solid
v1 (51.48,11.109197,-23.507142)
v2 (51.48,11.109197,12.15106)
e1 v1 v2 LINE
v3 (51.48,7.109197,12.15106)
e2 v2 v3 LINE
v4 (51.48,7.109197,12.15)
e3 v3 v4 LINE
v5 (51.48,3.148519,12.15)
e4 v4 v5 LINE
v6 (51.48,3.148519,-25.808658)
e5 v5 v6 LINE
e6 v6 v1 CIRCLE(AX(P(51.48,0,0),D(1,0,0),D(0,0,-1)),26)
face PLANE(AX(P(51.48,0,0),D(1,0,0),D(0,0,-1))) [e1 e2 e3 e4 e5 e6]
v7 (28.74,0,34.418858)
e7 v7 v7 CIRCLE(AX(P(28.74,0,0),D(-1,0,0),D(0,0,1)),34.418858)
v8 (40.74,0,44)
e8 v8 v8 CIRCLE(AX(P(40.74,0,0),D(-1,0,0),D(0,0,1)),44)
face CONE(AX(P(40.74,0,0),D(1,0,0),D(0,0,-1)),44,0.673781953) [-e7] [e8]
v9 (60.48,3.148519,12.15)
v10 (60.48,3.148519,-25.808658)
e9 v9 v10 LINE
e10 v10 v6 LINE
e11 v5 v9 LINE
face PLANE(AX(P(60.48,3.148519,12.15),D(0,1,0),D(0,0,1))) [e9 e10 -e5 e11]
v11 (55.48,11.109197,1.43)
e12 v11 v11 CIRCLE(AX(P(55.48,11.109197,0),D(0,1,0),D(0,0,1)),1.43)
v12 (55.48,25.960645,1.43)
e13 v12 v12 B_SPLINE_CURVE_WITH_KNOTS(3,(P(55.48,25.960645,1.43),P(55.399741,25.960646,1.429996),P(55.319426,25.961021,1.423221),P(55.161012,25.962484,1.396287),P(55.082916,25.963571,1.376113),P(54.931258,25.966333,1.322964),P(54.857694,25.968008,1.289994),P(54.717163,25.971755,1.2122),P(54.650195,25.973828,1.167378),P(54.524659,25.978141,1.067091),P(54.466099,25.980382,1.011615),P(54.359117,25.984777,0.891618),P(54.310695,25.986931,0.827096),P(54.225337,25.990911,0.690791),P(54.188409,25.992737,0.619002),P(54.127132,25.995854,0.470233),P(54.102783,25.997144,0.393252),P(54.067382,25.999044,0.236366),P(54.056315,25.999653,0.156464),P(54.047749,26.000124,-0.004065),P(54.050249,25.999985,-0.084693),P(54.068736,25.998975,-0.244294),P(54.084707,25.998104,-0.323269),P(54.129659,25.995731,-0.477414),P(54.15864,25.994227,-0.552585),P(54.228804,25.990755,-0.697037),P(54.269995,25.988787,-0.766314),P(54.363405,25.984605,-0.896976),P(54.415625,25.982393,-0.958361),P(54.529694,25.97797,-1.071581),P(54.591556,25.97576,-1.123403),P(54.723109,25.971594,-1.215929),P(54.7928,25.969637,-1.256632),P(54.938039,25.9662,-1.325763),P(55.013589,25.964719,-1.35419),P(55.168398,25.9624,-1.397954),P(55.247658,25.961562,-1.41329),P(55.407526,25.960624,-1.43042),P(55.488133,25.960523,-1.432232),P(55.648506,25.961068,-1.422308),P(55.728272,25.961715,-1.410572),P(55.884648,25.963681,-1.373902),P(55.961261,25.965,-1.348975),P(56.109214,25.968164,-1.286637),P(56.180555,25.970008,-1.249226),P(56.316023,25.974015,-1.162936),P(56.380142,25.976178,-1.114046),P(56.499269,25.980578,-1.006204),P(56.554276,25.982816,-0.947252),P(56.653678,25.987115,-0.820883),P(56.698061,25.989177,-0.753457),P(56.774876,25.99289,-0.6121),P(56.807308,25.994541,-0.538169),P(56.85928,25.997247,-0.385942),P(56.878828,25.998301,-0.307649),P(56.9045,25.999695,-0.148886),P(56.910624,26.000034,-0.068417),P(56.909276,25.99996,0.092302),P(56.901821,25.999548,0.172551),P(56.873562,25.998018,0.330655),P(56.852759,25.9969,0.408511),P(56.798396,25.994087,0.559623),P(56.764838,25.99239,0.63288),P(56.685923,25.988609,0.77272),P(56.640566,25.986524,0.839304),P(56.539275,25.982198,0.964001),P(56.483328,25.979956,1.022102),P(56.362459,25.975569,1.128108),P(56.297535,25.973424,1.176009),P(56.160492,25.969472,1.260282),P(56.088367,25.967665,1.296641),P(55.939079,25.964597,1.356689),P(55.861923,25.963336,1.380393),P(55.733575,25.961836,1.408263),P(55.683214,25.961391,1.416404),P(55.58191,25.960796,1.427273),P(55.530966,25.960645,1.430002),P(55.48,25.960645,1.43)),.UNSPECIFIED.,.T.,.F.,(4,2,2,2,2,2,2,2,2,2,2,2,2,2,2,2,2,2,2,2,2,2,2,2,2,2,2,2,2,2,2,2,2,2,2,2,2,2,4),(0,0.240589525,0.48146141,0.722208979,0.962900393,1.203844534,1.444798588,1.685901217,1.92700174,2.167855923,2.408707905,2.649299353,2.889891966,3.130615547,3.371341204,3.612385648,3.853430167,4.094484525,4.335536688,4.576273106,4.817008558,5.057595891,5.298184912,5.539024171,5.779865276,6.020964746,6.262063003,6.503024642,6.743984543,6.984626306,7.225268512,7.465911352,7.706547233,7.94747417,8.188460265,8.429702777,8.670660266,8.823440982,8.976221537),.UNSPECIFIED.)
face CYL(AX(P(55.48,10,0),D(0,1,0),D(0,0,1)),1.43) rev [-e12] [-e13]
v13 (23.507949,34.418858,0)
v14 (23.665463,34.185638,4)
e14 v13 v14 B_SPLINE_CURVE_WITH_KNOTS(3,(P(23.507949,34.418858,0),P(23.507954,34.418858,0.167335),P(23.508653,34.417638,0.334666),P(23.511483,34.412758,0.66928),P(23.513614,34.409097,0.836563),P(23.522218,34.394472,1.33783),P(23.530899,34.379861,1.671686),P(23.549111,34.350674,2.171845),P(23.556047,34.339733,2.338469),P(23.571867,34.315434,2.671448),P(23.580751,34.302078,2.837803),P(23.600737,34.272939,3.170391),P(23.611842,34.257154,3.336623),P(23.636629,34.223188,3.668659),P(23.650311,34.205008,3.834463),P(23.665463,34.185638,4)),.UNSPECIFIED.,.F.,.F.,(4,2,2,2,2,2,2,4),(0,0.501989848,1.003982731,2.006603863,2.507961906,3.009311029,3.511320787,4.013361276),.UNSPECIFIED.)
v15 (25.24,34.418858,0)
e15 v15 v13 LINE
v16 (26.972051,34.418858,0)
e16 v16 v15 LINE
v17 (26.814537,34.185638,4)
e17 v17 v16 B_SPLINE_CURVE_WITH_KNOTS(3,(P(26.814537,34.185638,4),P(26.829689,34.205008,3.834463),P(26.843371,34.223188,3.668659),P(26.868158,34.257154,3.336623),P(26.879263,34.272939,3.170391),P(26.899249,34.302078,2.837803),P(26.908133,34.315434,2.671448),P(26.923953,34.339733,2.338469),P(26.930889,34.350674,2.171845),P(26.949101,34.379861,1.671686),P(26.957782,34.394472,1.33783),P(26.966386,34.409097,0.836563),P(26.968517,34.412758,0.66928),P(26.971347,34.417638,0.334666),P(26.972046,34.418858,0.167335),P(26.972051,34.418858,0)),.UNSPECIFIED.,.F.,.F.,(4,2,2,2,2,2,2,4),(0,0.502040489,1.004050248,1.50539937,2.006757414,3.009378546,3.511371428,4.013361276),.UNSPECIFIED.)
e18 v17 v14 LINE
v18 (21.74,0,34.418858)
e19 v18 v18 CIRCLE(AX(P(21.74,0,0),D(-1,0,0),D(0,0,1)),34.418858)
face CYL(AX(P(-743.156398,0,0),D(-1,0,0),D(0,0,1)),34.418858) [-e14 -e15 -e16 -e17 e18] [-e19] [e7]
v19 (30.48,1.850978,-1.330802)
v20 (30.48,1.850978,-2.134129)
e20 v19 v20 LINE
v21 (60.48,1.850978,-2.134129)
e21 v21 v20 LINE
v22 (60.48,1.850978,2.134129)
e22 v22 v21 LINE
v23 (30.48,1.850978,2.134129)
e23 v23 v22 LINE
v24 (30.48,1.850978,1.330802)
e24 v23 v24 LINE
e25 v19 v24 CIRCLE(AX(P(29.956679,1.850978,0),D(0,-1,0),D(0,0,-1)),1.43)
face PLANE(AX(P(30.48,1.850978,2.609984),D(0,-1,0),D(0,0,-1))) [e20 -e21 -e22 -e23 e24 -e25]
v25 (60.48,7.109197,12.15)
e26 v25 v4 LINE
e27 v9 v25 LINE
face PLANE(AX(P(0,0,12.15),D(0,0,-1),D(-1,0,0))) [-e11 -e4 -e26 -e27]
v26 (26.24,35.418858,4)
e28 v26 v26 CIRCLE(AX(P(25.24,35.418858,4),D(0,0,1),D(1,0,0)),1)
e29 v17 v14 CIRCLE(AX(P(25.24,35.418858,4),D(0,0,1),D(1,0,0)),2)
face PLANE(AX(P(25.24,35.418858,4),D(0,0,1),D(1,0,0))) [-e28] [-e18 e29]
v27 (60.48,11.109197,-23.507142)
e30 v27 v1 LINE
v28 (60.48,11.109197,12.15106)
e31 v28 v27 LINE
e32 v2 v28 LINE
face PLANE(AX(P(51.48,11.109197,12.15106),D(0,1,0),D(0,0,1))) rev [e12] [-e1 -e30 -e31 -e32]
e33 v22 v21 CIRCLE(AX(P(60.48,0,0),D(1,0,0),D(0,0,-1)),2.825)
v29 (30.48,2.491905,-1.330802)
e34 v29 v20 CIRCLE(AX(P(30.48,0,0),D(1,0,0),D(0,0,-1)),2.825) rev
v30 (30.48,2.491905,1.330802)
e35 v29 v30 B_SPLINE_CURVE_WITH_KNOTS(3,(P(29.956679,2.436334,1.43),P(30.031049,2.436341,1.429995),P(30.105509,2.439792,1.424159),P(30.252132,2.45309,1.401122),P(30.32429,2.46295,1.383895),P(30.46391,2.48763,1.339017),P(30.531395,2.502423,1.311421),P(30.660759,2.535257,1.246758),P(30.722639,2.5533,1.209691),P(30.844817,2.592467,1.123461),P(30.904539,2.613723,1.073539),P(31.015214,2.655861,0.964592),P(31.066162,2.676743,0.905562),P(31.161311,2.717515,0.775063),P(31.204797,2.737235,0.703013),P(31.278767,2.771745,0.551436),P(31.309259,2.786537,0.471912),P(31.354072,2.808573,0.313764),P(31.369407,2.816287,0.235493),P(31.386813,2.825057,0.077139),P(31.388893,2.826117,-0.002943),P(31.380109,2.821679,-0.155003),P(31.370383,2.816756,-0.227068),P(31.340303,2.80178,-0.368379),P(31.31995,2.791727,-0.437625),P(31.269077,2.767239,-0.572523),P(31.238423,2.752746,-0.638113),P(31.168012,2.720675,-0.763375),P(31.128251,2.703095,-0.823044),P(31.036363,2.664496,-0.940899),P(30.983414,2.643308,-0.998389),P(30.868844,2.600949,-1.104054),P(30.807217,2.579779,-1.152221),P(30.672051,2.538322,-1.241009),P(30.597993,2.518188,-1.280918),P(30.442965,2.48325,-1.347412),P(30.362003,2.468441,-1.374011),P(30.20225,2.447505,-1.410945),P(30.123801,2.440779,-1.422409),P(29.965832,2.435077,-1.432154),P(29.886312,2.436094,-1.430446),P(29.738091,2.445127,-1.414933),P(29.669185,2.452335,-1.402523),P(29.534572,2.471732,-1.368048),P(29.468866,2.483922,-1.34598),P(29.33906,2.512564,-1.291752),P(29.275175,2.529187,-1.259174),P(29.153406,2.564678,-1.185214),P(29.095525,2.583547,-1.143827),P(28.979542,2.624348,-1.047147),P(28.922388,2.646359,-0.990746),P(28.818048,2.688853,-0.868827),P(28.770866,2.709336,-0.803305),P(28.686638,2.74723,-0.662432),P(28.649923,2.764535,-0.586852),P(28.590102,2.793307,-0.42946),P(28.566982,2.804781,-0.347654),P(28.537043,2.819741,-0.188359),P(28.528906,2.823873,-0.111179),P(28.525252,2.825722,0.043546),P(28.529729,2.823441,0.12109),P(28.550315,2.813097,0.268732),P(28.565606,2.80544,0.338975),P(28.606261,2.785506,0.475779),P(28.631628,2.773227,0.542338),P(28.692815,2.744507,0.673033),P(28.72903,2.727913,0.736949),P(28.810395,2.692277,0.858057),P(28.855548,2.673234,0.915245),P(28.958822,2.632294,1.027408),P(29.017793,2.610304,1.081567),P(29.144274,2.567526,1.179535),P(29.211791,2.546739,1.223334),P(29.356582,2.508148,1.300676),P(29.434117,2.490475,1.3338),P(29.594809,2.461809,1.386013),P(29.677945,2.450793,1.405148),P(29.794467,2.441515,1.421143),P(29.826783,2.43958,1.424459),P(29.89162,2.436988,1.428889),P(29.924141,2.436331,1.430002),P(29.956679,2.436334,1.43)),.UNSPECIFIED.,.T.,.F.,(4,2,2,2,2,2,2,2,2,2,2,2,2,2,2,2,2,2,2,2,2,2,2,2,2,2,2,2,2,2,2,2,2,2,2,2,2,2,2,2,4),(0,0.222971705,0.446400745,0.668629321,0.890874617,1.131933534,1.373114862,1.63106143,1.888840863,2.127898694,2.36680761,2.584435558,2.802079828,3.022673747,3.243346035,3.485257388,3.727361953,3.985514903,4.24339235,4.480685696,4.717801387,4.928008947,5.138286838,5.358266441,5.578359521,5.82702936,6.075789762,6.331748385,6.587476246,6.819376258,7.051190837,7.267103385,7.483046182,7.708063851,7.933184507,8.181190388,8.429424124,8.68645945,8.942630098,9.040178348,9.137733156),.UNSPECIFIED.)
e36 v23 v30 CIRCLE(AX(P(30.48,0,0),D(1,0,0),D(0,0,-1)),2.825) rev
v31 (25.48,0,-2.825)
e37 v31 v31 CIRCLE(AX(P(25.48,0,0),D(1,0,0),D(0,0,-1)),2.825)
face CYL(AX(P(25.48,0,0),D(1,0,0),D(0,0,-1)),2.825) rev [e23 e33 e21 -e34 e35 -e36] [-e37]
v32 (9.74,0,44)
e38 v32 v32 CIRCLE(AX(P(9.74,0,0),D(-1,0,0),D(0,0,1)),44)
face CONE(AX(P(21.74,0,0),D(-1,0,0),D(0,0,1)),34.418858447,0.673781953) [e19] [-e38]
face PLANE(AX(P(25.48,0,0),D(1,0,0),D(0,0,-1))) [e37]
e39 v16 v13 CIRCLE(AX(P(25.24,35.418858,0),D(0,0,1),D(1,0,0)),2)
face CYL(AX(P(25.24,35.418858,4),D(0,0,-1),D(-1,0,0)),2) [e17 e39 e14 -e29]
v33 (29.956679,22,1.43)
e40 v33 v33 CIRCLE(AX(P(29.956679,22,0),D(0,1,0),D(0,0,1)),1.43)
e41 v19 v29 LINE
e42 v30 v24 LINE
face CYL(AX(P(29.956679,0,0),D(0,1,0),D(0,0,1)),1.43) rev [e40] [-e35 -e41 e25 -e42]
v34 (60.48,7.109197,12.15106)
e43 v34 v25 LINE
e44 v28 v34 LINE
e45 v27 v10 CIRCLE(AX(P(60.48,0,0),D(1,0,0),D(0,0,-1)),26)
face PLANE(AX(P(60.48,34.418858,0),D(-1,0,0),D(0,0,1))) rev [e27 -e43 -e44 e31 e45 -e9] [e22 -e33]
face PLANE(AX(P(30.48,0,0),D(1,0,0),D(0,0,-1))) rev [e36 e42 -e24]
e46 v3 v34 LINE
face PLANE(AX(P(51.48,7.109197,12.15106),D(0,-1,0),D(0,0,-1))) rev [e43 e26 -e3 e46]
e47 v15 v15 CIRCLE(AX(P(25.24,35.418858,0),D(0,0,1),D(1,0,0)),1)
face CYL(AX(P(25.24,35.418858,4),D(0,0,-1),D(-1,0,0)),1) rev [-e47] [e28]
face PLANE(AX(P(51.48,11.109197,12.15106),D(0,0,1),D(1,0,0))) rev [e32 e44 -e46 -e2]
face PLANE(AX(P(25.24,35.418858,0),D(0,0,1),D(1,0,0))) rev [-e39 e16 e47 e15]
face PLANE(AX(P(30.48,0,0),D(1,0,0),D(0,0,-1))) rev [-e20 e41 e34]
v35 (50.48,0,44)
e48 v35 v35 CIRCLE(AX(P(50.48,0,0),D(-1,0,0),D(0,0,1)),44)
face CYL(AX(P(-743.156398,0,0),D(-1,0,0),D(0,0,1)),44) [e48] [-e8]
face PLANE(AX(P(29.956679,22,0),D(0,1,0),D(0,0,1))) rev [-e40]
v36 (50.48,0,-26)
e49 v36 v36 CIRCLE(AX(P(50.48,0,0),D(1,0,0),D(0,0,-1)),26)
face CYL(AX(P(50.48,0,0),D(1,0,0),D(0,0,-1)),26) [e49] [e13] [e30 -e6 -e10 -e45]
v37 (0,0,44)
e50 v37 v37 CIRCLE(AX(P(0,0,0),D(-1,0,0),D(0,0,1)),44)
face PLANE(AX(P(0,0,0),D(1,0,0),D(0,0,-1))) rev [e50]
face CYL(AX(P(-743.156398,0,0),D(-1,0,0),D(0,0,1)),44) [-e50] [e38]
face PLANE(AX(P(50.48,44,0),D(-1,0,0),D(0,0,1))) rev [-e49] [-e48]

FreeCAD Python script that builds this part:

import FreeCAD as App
import Part
import Sketcher

doc = App.newDocument("Part")
body = doc.addObject("PartDesign::Body", "Body")

# Sketch on XY plane
sketch1 = body.newObject("Sketcher::SketchObject", "Sketch")
sketch1.AttachmentSupport = (doc.getObject("XY_Plane"), [""])
sketch1.MapMode = "FlatFace"
sketch1.addGeometry([
    Part.LineSegment(App.Vector(0, 44, 0), App.Vector(0, 0, 0)),  # 0
    Part.LineSegment(App.Vector(0, 0, 0), App.Vector(60, 0, 0)),  # 1
    Part.LineSegment(App.Vector(60, 0, 0), App.Vector(60, 34, 0)),  # 2
    Part.LineSegment(App.Vector(60, 34, 0), App.Vector(50, 34, 0)),  # 3
    Part.LineSegment(App.Vector(50, 34, 0), App.Vector(50, 44, 0)),  # 4
    Part.LineSegment(App.Vector(50, 44, 0), App.Vector(41, 44, 0)),  # 5
    Part.LineSegment(App.Vector(41, 44, 0), App.Vector(29, 34, 0)),  # 6
    Part.LineSegment(App.Vector(29, 34, 0), App.Vector(22, 34, 0)),  # 7
    Part.LineSegment(App.Vector(22, 34, 0), App.Vector(10, 44, 0)),  # 8
    Part.LineSegment(App.Vector(10, 44, 0), App.Vector(0, 44, 0)),  # 9
], False)
sketch1.addConstraint([
    Sketcher.Constraint("Coincident", 0, 2, 1, 1),
    Sketcher.Constraint("Coincident", 1, 2, 2, 1),
    Sketcher.Constraint("Coincident", 2, 2, 3, 1),
    Sketcher.Constraint("Coincident", 3, 2, 4, 1),
    Sketcher.Constraint("Coincident", 4, 2, 5, 1),
    Sketcher.Constraint("Coincident", 5, 2, 6, 1),
    Sketcher.Constraint("Coincident", 6, 2, 7, 1),
    Sketcher.Constraint("Coincident", 7, 2, 8, 1),
    Sketcher.Constraint("Coincident", 8, 2, 9, 1),
    Sketcher.Constraint("Coincident", 9, 2, 0, 1),
    Sketcher.Constraint("Vertical", 0),
    Sketcher.Constraint("Horizontal", 1),
    Sketcher.Constraint("Vertical", 2),
    Sketcher.Constraint("Horizontal", 3),
    Sketcher.Constraint("Vertical", 4),
    Sketcher.Constraint("Horizontal", 5),
    Sketcher.Constraint("Horizontal", 7),
    Sketcher.Constraint("Horizontal", 9),
    Sketcher.Constraint("Coincident", 0, 2, -1, 1),
    Sketcher.Constraint("Horizontal", 3, 2, 6, 2),
    Sketcher.Constraint("Horizontal", 5, 2, 8, 2),
    Sketcher.Constraint("Equal", 5, 9),
    Sketcher.Constraint("Equal", 6, 8),
    Sketcher.Constraint("DistanceX", 3, 2, 3, 1, 10.0),
    Sketcher.Constraint("DistanceX", 7, 2, 7, 1, 7.0),
    Sketcher.Constraint("DistanceY", 0, 2, 0, 1, 44.0),
    Sketcher.Constraint("DistanceX", 6, 2, 5, 2, 12.0),
    Sketcher.Constraint("DistanceX", 1, 1, 1, 2, 60.48),
    Sketcher.Constraint("DistanceY", 2, 1, 2, 2, 34.418858),
])
revolution = body.newObject("PartDesign::Revolution", "Revolution")
revolution.Profile = sketch1
revolution.ReferenceAxis = (sketch1, ["H_Axis"])
revolution.Angle = 360

# Sketch on YZ plane
sketch2 = body.newObject("Sketcher::SketchObject", "Sketch001")
sketch2.AttachmentSupport = (doc.getObject("YZ_Plane"), [""])
sketch2.MapMode = "FlatFace"
sketch2.AttachmentOffset = App.Placement(App.Vector(0, 0, 60.48), App.Rotation())
sketch2.addGeometry(Part.Circle(App.Vector(0, 0, 0), App.Vector(0, 0, 1), 2.8), False)
sketch2.addConstraint([
    Sketcher.Constraint("Coincident", 0, 3, -1, 1),
    Sketcher.Constraint("Diameter", 0, 5.65),
])
pocket1 = body.newObject("PartDesign::Pocket", "Pocket")
pocket1.Profile = sketch2
pocket1.Length = 35

# Sketch on YZ plane
sketch3 = body.newObject("Sketcher::SketchObject", "Sketch002")
sketch3.AttachmentSupport = (doc.getObject("YZ_Plane"), [""])
sketch3.MapMode = "FlatFace"
sketch3.AttachmentOffset = App.Placement(App.Vector(0, 0, 60.48), App.Rotation())
sketch3.addGeometry([
    Part.LineSegment(App.Vector(2.9, 2.6, 0), App.Vector(1.9, 2.6, 0)),
    Part.LineSegment(App.Vector(1.9, 2.6, 0), App.Vector(1.9, -2.4, 0)),
    Part.LineSegment(App.Vector(1.9, -2.4, 0), App.Vector(2.9, -2.4, 0)),
    Part.LineSegment(App.Vector(2.9, -2.4, 0), App.Vector(2.9, 2.6, 0)),
], False)
sketch3.addConstraint([
    Sketcher.Constraint("Coincident", 0, 2, 1, 1),
    Sketcher.Constraint("Coincident", 1, 2, 2, 1),
    Sketcher.Constraint("Coincident", 2, 2, 3, 1),
    Sketcher.Constraint("Coincident", 3, 2, 0, 1),
    Sketcher.Constraint("Horizontal", 0),
    Sketcher.Constraint("Vertical", 1),
    Sketcher.Constraint("Horizontal", 2),
    Sketcher.Constraint("Vertical", 3),
    Sketcher.Constraint("DistanceX", 0, 2, 0, 1, 1.0),
    Sketcher.Constraint("DistanceY", 1, 2, 1, 1, 5.008881),
    Sketcher.Constraint("DistanceX", -1, 1, 0, 2, 1.850978),
    Sketcher.Constraint("DistanceY", -1, 1, 0, 2, 2.609984),
])
pad1 = body.newObject("PartDesign::Pad", "Pad")
pad1.Profile = sketch3
pad1.Length = 30
pad1.Reversed = True

# Sketch on YZ plane
sketch4 = body.newObject("Sketcher::SketchObject", "Sketch003")
sketch4.AttachmentSupport = (doc.getObject("YZ_Plane"), [""])
sketch4.MapMode = "FlatFace"
sketch4.AttachmentOffset = App.Placement(App.Vector(0, 0, 60.48), App.Rotation())
sketch4.addGeometry([
    Part.LineSegment(App.Vector(2.9, 0.6, 0), App.Vector(2.4, 0.6, 0)),
    Part.LineSegment(App.Vector(2.4, 0.6, 0), App.Vector(2.4, -0.4, 0)),
    Part.LineSegment(App.Vector(2.4, -0.4, 0), App.Vector(2.9, -0.4, 0)),
    Part.LineSegment(App.Vector(2.9, -0.4, 0), App.Vector(2.9, 0.6, 0)),
], False)
sketch4.addConstraint([
    Sketcher.Constraint("Coincident", 0, 2, 1, 1),
    Sketcher.Constraint("Coincident", 1, 2, 2, 1),
    Sketcher.Constraint("Coincident", 2, 2, 3, 1),
    Sketcher.Constraint("Coincident", 3, 2, 0, 1),
    Sketcher.Constraint("Horizontal", 0),
    Sketcher.Constraint("Vertical", 1),
    Sketcher.Constraint("Horizontal", 2),
    Sketcher.Constraint("Vertical", 3),
    Sketcher.Constraint("DistanceX", 0, 2, 0, 1, 0.511502),
    Sketcher.Constraint("DistanceY", 1, 2, 1, 1, 0.959067),
    Sketcher.Constraint("DistanceX", -1, 1, 0, 2, 2.418192),
    Sketcher.Constraint("DistanceY", -1, 1, 0, 2, 0.56365),
])
pad2 = body.newObject("PartDesign::Pad", "Pad001")
pad2.Profile = sketch4
pad2.Length = 30
pad2.Reversed = True

# Sketch on YZ plane
sketch5 = body.newObject("Sketcher::SketchObject", "Sketch004")
sketch5.AttachmentSupport = (doc.getObject("YZ_Plane"), [""])
sketch5.MapMode = "FlatFace"
sketch5.AttachmentOffset = App.Placement(App.Vector(0, 0, 60.48), App.Rotation())
sketch5.addGeometry([
    Part.LineSegment(App.Vector(11.1, 12.2, 0), App.Vector(7.1, 12.2, 0)),
    Part.LineSegment(App.Vector(7.1, 12.2, 0), App.Vector(7.1, -33.7, 0)),
    Part.LineSegment(App.Vector(7.1, -33.7, 0), App.Vector(11.1, -33.7, 0)),
    Part.LineSegment(App.Vector(11.1, -33.7, 0), App.Vector(11.1, 12.2, 0)),
], False)
sketch5.addConstraint([
    Sketcher.Constraint("Coincident", 0, 2, 1, 1),
    Sketcher.Constraint("Coincident", 1, 2, 2, 1),
    Sketcher.Constraint("Coincident", 2, 2, 3, 1),
    Sketcher.Constraint("Coincident", 3, 2, 0, 1),
    Sketcher.Constraint("Horizontal", 0),
    Sketcher.Constraint("Vertical", 1),
    Sketcher.Constraint("Horizontal", 2),
    Sketcher.Constraint("Vertical", 3),
    Sketcher.Constraint("DistanceX", 0, 2, 0, 1, 4.0),
    Sketcher.Constraint("DistanceY", 1, 2, 1, 1, 45.827716),
    Sketcher.Constraint("DistanceY", -1, 1, 0, 2, 12.15106),
    Sketcher.Constraint("DistanceX", -1, 1, 0, 2, 7.109197),
])
pocket2 = body.newObject("PartDesign::Pocket", "Pocket001")
pocket2.Profile = sketch5
pocket2.Length = 9

# Sketch on XZ plane
sketch6 = body.newObject("Sketcher::SketchObject", "Sketch005")
sketch6.AttachmentSupport = (doc.getObject("XZ_Plane"), [""])
sketch6.MapMode = "FlatFace"
sketch6.AttachmentOffset = App.Placement(App.Vector(0, 0, -22), App.Rotation())
sketch6.addGeometry(Part.Circle(App.Vector(30, 0, 0), App.Vector(0, 0, 1), 1.4), False)
sketch6.addConstraint([
    Sketcher.Constraint("PointOnObject", 0, 3, -1),
    Sketcher.Constraint("Diameter", 0, 2.86),
    Sketcher.Constraint("DistanceX", -1, 1, 0, 3, 29.956679),
])
pocket3 = body.newObject("PartDesign::Pocket", "Pocket002")
pocket3.Profile = sketch6
pocket3.Length = 22
pocket3.Reversed = True

# Sketch on XY plane
sketch7 = body.newObject("Sketcher::SketchObject", "Sketch006")
sketch7.AttachmentSupport = (doc.getObject("XY_Plane"), [""])
sketch7.MapMode = "FlatFace"
sketch7.addGeometry([
    Part.Circle(App.Vector(25.2, 35.4, 0), App.Vector(0, 0, 1), 2),
    Part.Circle(App.Vector(25.2, 35.4, 0), App.Vector(0, 0, 1), 1),
], False)
sketch7.addConstraint([
    Sketcher.Constraint("Coincident", 1, 3, 0, 3),
    Sketcher.Constraint("Diameter", 0, 4.0),
    Sketcher.Constraint("Diameter", 1, 2.0),
    Sketcher.Constraint("DistanceX", -1, 1, 0, 3, 25.24),
    Sketcher.Constraint("DistanceY", -1, 1, 0, 3, 35.418858),
])
pad3 = body.newObject("PartDesign::Pad", "Pad002")
pad3.Profile = sketch7
pad3.Length = 4

# Sketch on XZ plane
sketch8 = body.newObject("Sketcher::SketchObject", "Sketch007")
sketch8.AttachmentSupport = (doc.getObject("XZ_Plane"), [""])
sketch8.MapMode = "FlatFace"
sketch8.AttachmentOffset = App.Placement(App.Vector(0, 0, -35), App.Rotation())
sketch8.addGeometry(Part.Circle(App.Vector(55.5, 0, 0), App.Vector(0, 0, 1), 1.4), False)
sketch8.addConstraint([
    Sketcher.Constraint("PointOnObject", 0, 3, -1),
    Sketcher.Constraint("Diameter", 0, 2.86),
    Sketcher.Constraint("DistanceX", -1, 1, 0, 3, 55.48),
])
pocket4 = body.newObject("PartDesign::Pocket", "Pocket003")
pocket4.Profile = sketch8
pocket4.Length = 25
pocket4.Reversed = True

# Sketch on XY plane
sketch9 = body.newObject("Sketcher::SketchObject", "Sketch008")
sketch9.AttachmentSupport = (doc.getObject("XY_Plane"), [""])
sketch9.MapMode = "FlatFace"
sketch9.addGeometry([
    Part.LineSegment(App.Vector(51.5, 7.1, 0), App.Vector(51.5, 3.1, 0)),
    Part.LineSegment(App.Vector(51.5, 3.1, 0), App.Vector(60.5, 3.1, 0)),
    Part.LineSegment(App.Vector(60.5, 3.1, 0), App.Vector(60.5, 7.1, 0)),
    Part.LineSegment(App.Vector(60.5, 7.1, 0), App.Vector(51.5, 7.1, 0)),
], False)
sketch9.addConstraint([
    Sketcher.Constraint("Coincident", 0, 2, 1, 1),
    Sketcher.Constraint("Coincident", 1, 2, 2, 1),
    Sketcher.Constraint("Coincident", 2, 2, 3, 1),
    Sketcher.Constraint("Coincident", 3, 2, 0, 1),
    Sketcher.Constraint("Vertical", 0),
    Sketcher.Constraint("Horizontal", 1),
    Sketcher.Constraint("Vertical", 2),
    Sketcher.Constraint("Horizontal", 3),
    Sketcher.Constraint("DistanceX", 1, 1, 1, 2, 9.0),
    Sketcher.Constraint("DistanceX", -1, 1, 0, 2, 51.48),
    Sketcher.Constraint("DistanceY", 0, 2, 0, 1, 3.960678),
    Sketcher.Constraint("DistanceY", -1, 1, 0, 2, 3.148519),
])
pocket5 = body.newObject("PartDesign::Pocket", "Pocket004")
pocket5.Profile = sketch9
pocket5.Type = "TwoLengths"
pocket5.Length = 12.15
pocket5.Length2 = 35
pocket5.Reversed = True

# Sketch on YZ plane
sketch10 = body.newObject("Sketcher::SketchObject", "Sketch009")
sketch10.AttachmentSupport = (doc.getObject("YZ_Plane"), [""])
sketch10.MapMode = "FlatFace"
sketch10.AttachmentOffset = App.Placement(App.Vector(0, 0, 60.48), App.Rotation())
sketch10.addGeometry([
    Part.Circle(App.Vector(0, 0, 0), App.Vector(0, 0, 1), 47),
    Part.Circle(App.Vector(0, 0, 0), App.Vector(0, 0, 1), 26),
], False)
sketch10.addConstraint([
    Sketcher.Constraint("Coincident", 0, 3, -1, 1),
    Sketcher.Constraint("Coincident", 1, 3, -1, 1),
    Sketcher.Constraint("Diameter", 0, 94.0),
    Sketcher.Constraint("Diameter", 1, 52.0),
])
pocket6 = body.newObject("PartDesign::Pocket", "Pocket005")
pocket6.Profile = sketch10
pocket6.Length = 10

doc.recompute()
